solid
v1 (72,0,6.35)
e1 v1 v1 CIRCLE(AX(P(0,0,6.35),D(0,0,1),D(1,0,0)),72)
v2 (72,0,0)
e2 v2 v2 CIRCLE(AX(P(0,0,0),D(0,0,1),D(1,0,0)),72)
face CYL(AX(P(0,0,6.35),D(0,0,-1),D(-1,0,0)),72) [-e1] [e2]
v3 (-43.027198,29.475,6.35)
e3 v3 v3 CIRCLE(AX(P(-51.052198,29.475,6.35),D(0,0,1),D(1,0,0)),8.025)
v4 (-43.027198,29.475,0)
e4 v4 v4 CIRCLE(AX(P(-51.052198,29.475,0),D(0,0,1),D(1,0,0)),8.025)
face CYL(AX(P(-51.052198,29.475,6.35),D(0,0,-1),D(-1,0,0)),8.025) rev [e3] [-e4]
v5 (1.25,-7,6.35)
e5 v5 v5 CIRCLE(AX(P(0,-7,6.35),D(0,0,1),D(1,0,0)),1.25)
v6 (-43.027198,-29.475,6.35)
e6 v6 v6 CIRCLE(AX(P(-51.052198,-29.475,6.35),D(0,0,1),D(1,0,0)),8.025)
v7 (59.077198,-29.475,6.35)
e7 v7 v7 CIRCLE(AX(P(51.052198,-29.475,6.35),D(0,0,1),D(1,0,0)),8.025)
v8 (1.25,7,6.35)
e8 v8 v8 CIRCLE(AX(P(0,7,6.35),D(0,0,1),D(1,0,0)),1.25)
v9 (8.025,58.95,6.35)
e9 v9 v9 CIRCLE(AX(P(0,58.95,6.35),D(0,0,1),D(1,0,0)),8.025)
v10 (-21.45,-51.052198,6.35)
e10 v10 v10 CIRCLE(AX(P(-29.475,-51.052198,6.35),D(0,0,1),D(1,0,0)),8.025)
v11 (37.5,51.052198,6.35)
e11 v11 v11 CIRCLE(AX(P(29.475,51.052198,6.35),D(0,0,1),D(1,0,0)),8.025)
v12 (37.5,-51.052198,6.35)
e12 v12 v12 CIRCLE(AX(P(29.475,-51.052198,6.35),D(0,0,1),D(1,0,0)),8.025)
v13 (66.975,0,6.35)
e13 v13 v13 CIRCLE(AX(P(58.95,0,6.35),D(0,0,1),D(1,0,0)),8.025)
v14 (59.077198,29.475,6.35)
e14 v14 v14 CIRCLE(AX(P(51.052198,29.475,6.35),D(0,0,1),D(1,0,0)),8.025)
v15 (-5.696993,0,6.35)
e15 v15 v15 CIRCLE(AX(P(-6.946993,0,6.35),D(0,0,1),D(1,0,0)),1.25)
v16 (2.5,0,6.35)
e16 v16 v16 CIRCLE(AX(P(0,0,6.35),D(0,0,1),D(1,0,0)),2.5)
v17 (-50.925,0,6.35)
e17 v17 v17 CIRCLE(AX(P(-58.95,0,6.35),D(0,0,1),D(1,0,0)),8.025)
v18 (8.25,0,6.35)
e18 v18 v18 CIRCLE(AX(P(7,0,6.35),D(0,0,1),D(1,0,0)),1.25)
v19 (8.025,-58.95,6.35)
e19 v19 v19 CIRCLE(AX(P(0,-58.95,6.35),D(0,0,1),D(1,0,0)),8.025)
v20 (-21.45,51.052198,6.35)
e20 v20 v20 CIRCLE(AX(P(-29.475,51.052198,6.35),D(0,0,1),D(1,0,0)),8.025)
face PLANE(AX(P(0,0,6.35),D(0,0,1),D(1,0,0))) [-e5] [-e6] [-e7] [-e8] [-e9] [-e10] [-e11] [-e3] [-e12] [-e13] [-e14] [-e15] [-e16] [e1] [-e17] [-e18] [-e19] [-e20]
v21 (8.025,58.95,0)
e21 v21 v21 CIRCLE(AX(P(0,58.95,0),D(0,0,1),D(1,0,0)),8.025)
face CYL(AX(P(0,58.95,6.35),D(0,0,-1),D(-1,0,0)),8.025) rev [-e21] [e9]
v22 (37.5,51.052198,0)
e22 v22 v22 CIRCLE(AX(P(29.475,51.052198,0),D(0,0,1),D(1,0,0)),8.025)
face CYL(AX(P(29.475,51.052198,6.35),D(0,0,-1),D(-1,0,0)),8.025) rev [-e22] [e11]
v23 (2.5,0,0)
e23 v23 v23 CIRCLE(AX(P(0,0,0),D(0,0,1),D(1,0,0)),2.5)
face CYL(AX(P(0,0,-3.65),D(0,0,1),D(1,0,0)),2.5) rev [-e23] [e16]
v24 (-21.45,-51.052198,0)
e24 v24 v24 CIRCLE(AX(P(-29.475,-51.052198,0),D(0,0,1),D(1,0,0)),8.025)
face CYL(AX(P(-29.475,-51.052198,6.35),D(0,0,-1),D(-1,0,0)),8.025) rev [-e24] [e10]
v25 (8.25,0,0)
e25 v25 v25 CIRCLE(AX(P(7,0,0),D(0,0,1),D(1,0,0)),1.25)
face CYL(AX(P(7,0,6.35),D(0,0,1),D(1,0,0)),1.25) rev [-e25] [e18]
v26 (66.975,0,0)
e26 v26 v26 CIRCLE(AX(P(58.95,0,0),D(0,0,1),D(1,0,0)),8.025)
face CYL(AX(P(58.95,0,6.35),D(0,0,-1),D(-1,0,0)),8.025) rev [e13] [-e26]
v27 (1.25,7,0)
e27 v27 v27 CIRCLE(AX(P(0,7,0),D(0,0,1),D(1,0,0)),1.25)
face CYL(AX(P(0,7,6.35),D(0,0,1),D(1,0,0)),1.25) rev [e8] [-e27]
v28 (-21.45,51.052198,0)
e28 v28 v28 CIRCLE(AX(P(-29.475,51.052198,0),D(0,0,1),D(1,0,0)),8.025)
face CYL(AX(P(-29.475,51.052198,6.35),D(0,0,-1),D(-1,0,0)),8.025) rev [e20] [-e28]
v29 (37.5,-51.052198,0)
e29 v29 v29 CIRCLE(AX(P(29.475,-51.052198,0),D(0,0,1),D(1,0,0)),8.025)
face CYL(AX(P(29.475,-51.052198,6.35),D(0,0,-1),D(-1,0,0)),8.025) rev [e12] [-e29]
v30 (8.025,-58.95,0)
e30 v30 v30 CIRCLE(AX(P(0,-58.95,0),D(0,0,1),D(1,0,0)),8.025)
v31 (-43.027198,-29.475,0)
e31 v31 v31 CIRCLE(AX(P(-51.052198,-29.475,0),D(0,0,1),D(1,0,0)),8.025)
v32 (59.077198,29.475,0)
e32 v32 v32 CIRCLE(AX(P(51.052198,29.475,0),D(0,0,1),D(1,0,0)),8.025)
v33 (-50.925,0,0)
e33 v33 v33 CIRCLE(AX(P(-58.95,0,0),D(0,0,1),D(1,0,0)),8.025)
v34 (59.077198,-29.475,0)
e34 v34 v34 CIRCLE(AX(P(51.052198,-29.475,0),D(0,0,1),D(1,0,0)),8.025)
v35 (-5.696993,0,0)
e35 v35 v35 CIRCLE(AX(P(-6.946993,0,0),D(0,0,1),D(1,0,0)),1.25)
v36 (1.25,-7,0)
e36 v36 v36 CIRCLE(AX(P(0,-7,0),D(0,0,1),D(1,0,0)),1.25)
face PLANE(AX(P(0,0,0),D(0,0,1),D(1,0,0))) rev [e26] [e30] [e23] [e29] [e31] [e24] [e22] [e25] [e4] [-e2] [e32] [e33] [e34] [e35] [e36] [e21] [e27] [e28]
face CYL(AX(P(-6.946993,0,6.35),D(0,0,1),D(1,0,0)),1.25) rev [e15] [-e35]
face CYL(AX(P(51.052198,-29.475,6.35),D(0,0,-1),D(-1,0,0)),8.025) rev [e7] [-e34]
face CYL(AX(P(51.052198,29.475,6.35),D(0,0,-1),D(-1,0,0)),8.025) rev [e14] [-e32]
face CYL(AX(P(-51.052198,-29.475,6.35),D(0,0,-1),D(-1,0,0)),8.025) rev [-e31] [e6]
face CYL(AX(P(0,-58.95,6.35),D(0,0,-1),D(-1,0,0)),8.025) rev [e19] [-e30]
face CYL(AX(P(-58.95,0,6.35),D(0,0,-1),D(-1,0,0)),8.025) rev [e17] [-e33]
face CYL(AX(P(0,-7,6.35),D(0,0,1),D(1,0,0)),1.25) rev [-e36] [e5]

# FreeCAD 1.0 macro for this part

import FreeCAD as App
import Part
import Sketcher
from FreeCAD import Vector

doc = App.newDocument("Part")
body = doc.addObject("PartDesign::Body", "Body")

# Sketch on XY plane
sketch1 = doc.addObject("Sketcher::SketchObject", "Sketch")
body.addObject(sketch1)
sketch1.AttachmentSupport = (doc.XY_Plane, [""])
sketch1.MapMode = "FlatFace"
sketch1.addGeometry([
    Part.Circle(Vector(0, 0, 0), Vector(0, 0, 1), 72),  # 0
    Part.Circle(Vector(-29.475, -51.052198, 0), Vector(0, 0, 1), 8.025),  # 1
    Part.Circle(Vector(-51.052198, -29.475, 0), Vector(0, 0, 1), 8.025),  # 2
    Part.Circle(Vector(0, -58.95, 0), Vector(0, 0, 1), 8.025),  # 3
    Part.Circle(Vector(29.475, -51.052198, 0), Vector(0, 0, 1), 8.025),  # 4
    Part.Circle(Vector(51.052198, -29.475, 0), Vector(0, 0, 1), 8.025),  # 5
    Part.Circle(Vector(-58.95, 0, 0), Vector(0, 0, 1), 8.025),  # 6
    Part.Circle(Vector(-51.052198, 29.475, 0), Vector(0, 0, 1), 8.025),  # 7
    Part.Circle(Vector(-29.475, 51.052198, 0), Vector(0, 0, 1), 8.025),  # 8
    Part.Circle(Vector(58.95, 0, 0), Vector(0, 0, 1), 8.025),  # 9
    Part.Circle(Vector(51.052198, 29.475, 0), Vector(0, 0, 1), 8.025),  # 10
    Part.Circle(Vector(0, 58.95, 0), Vector(0, 0, 1), 8.025),  # 11
    Part.Circle(Vector(29.475, 51.052198, 0), Vector(0, 0, 1), 8.025),  # 12
], False)
sketch1.addConstraint([
    Sketcher.Constraint("Coincident", 0, 3, -1, 1),
    Sketcher.Constraint("Equal", 1, 2),
    Sketcher.Constraint("Equal", 2, 3),
    Sketcher.Constraint("Equal", 3, 4),
    Sketcher.Constraint("Equal", 4, 5),
    Sketcher.Constraint("Equal", 5, 6),
    Sketcher.Constraint("Equal", 6, 7),
    Sketcher.Constraint("Equal", 7, 8),
    Sketcher.Constraint("Equal", 8, 9),
    Sketcher.Constraint("Equal", 9, 10),
    Sketcher.Constraint("Equal", 10, 11),
    Sketcher.Constraint("Equal", 11, 12),
    Sketcher.Constraint("Symmetric", 5, 3, 7, 3, -1, 1),
    Sketcher.Constraint("Symmetric", 4, 3, 8, 3, -1, 1),
    Sketcher.Constraint("Symmetric", 6, 3, 9, 3, -1, 1),
    Sketcher.Constraint("Symmetric", 2, 3, 10, 3, -1, 1),
    Sketcher.Constraint("Symmetric", 3, 3, 11, 3, -1, 1),
    Sketcher.Constraint("Symmetric", 1, 3, 12, 3, -1, 1),
    Sketcher.Constraint("Symmetric", 1, 3, 4, 3, -2),
    Sketcher.Constraint("Symmetric", 2, 3, 5, 3, -2),
    Sketcher.Constraint("PointOnObject", 3, 3, -2),
    Sketcher.Constraint("PointOnObject", 6, 3, -1),
    Sketcher.Constraint("Diameter", 0, 144.0),
    Sketcher.Constraint("Diameter", 1, 16.05),
    Sketcher.Constraint("DistanceY", 3, 3, -1, 1, 58.95),
    Sketcher.Constraint("DistanceX", 6, 3, -1, 1, 58.95),
    Sketcher.Constraint("DistanceX", 1, 3, 4, 3, 58.95),
    Sketcher.Constraint("DistanceY", 2, 3, 7, 3, 58.95),
    Sketcher.Constraint("DistanceY", 1, 3, -1, 1, 51.052198),
    Sketcher.Constraint("DistanceX", 2, 3, -1, 1, 51.052198),
])
pad1 = doc.addObject("PartDesign::Pad", "Pad")
body.addObject(pad1)
pad1.Profile = sketch1
pad1.Length = 6.35

# Sketch on XY plane
sketch2 = doc.addObject("Sketcher::SketchObject", "Sketch001")
body.addObject(sketch2)
sketch2.AttachmentSupport = (doc.XY_Plane, [""])
sketch2.MapMode = "FlatFace"
sketch2.AttachmentOffset = App.Placement(Vector(0, 0, 6.35), App.Rotation())
sketch2.addGeometry(Part.Circle(Vector(0, 0, 0), Vector(0, 0, 1), 2.5), False)
sketch2.addConstraint([
    Sketcher.Constraint("Coincident", 0, 3, -1, 1),
    Sketcher.Constraint("Diameter", 0, 5.0),
])
pocket1 = doc.addObject("PartDesign::Pocket", "Pocket")
body.addObject(pocket1)
pocket1.Profile = sketch2
pocket1.Length = 10

# Sketch on XY plane
sketch3 = doc.addObject("Sketcher::SketchObject", "Sketch002")
body.addObject(sketch3)
sketch3.AttachmentSupport = (doc.XY_Plane, [""])
sketch3.MapMode = "FlatFace"
sketch3.AttachmentOffset = App.Placement(Vector(0, 0, 6.35), App.Rotation())
sketch3.addGeometry(Part.Circle(Vector(-6.946993, 0, 0), Vector(0, 0, 1), 1.25), False)
sketch3.addConstraint([
    Sketcher.Constraint("PointOnObject", 0, 3, -1),
    Sketcher.Constraint("Diameter", 0, 2.5),
    Sketcher.Constraint("DistanceX", 0, 3, -1, 1, 6.946993),
])
doc.recompute()
hole = doc.addObject("PartDesign::Hole", "Hole")
body.addObject(hole)
hole.Profile = sketch3
hole.ThreadType = "None"
hole.Diameter = 2.5
hole.DepthType = "ThroughAll"

# Sketch on XY plane
sketch4 = doc.addObject("Sketcher::SketchObject", "Sketch003")
body.addObject(sketch4)
sketch4.AttachmentSupport = (doc.XY_Plane, [""])
sketch4.MapMode = "FlatFace"
sketch4.AttachmentOffset = App.Placement(Vector(0, 0, 6.35), App.Rotation())
sketch4.addGeometry(Part.Circle(Vector(0, 7, 0), Vector(0, 0, 1), 1.25), False)
sketch4.addConstraint([
    Sketcher.Constraint("PointOnObject", 0, 3, -2),
    Sketcher.Constraint("Diameter", 0, 2.5),
    Sketcher.Constraint("DistanceY", -1, 1, 0, 3, 7.0),
])
doc.recompute()
hole2 = doc.addObject("PartDesign::Hole", "Hole001")
body.addObject(hole2)
hole2.Profile = sketch4
hole2.ThreadType = "None"
hole2.Diameter = 2.5
hole2.DepthType = "ThroughAll"

# Sketch on XY plane
sketch5 = doc.addObject("Sketcher::SketchObject", "Sketch004")
body.addObject(sketch5)
sketch5.AttachmentSupport = (doc.XY_Plane, [""])
sketch5.MapMode = "FlatFace"
sketch5.AttachmentOffset = App.Placement(Vector(0, 0, 6.35), App.Rotation())
sketch5.addGeometry(Part.Circle(Vector(0, -7, 0), Vector(0, 0, 1), 1.25), False)
sketch5.addConstraint([
    Sketcher.Constraint("PointOnObject", 0, 3, -2),
    Sketcher.Constraint("Diameter", 0, 2.5),
    Sketcher.Constraint("DistanceY", 0, 3, -1, 1, 7.0),
])
doc.recompute()
hole3 = doc.addObject("PartDesign::Hole", "Hole002")
body.addObject(hole3)
hole3.Profile = sketch5
hole3.ThreadType = "None"
hole3.Diameter = 2.5
hole3.DepthType = "ThroughAll"

# Sketch on XY plane
sketch6 = doc.addObject("Sketcher::SketchObject", "Sketch005")
body.addObject(sketch6)
sketch6.AttachmentSupport = (doc.XY_Plane, [""])
sketch6.MapMode = "FlatFace"
sketch6.AttachmentOffset = App.Placement(Vector(0, 0, 6.35), App.Rotation())
sketch6.addGeometry(Part.Circle(Vector(7, 0, 0), Vector(0, 0, 1), 1.25), False)
sketch6.addConstraint([
    Sketcher.Constraint("PointOnObject", 0, 3, -1),
    Sketcher.Constraint("Diameter", 0, 2.5),
    Sketcher.Constraint("DistanceX", -1, 1, 0, 3, 7.0),
])
doc.recompute()
hole4 = doc.addObject("PartDesign::Hole", "Hole003")
body.addObject(hole4)
hole4.Profile = sketch6
hole4.ThreadType = "None"
hole4.Diameter = 2.5
hole4.DepthType = "ThroughAll"

doc.recompute()
